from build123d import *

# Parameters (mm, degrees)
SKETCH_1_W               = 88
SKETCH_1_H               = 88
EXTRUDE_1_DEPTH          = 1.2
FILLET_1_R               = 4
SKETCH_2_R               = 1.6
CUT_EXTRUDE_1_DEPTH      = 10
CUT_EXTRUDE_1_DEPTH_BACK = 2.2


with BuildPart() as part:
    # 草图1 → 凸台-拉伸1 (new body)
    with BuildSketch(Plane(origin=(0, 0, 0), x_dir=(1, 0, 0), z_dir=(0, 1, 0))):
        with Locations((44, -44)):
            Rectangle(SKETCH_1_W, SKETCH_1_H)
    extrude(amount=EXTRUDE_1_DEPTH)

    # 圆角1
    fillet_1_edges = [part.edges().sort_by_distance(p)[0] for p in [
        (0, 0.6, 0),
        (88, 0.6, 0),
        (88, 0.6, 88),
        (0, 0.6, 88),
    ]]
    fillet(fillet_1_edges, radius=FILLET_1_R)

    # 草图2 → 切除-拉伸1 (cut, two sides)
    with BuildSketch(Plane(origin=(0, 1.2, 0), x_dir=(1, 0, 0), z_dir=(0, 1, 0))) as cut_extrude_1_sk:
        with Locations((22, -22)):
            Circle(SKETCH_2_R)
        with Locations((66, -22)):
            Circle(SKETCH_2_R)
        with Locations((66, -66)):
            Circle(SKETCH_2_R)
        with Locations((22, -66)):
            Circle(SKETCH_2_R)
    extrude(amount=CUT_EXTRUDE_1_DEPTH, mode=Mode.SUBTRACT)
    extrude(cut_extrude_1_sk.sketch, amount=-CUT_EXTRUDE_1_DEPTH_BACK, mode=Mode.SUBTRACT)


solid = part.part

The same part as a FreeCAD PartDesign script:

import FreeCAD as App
import Part
import Sketcher
Q = App.Units.Quantity


def edges_at(feature, points):
    """Names of the edges that pass closest to the given points."""
    edges = feature.Shape.Edges
    near = lambda p: min(range(len(edges)), key=lambda i: edges[i].distToShape(Part.Vertex(*p))[0])
    return sorted({f"Edge{near(p) + 1}" for p in points})


def add_polygon(sketch, points):
    """Adds a closed chain of lines whose ends are joined by coincident constraints."""
    first, n = sketch.GeometryCount, len(points)
    for a, b in zip(points, points[1:] + points[:1]):
        sketch.addGeometry(Part.LineSegment(App.Vector(*a, 0), App.Vector(*b, 0)), False)
    for i in range(n):
        sketch.addConstraint(Sketcher.Constraint("Coincident", first + i, 2, first + (i + 1) % n, 1))

doc = App.newDocument("Part")
body = doc.addObject("PartDesign::Body", "Body")

# Sketch on XZ plane
sketch1 = doc.addObject("Sketcher::SketchObject", "Sketch")
body.addObject(sketch1)
sketch1.AttachmentSupport = (doc.XZ_Plane, [""])
sketch1.MapMode = "FlatFace"
add_polygon(sketch1, [(0, 0), (0, 88), (88, 88), (88, 0)])  # lines 0-3
sketch1.addConstraint(Sketcher.Constraint("Vertical", 0))
sketch1.addConstraint(Sketcher.Constraint("Horizontal", 1))
sketch1.addConstraint(Sketcher.Constraint("Vertical", 2))
sketch1.addConstraint(Sketcher.Constraint("Horizontal", 3))
sketch1.addConstraint(Sketcher.Constraint("Coincident", 3, 2, -1, 1))
sketch1.addConstraint(Sketcher.Constraint("Equal", 3, 0))
sketch1.addConstraint(Sketcher.Constraint("DistanceX", 1, 1, 1, 2, Q("88 mm")))
pad1 = doc.addObject("PartDesign::Pad", "Pad")
body.addObject(pad1)
pad1.Profile = sketch1
pad1.Length = 1.2
pad1.Reversed = True
doc.recompute()

fillet = doc.addObject("PartDesign::Fillet", "Fillet")
body.addObject(fillet)
fillet.Base = (pad1, edges_at(pad1, [
    (0, 0.6, 0),
    (88, 0.6, 0),
    (88, 0.6, 88),
    (0, 0.6, 88),
]))
fillet.Radius = 4

# Sketch on XZ plane
sketch2 = doc.addObject("Sketcher::SketchObject", "Sketch001")
body.addObject(sketch2)
sketch2.AttachmentSupport = (doc.XZ_Plane, [""])
sketch2.MapMode = "FlatFace"
sketch2.AttachmentOffset = App.Placement(App.Vector(0, 0, -1.2), App.Rotation())
sketch2.addGeometry(Part.Circle(App.Vector(22, 22, 0), App.Vector(0, 0, 1), 1.6), False)
sketch2.addGeometry(Part.Circle(App.Vector(66, 22, 0), App.Vector(0, 0, 1), 1.6), False)
sketch2.addGeometry(Part.Circle(App.Vector(66, 66, 0), App.Vector(0, 0, 1), 1.6), False)
sketch2.addGeometry(Part.Circle(App.Vector(22, 66, 0), App.Vector(0, 0, 1), 1.6), False)
sketch2.addConstraint(Sketcher.Constraint("Equal", 0, 1))
sketch2.addConstraint(Sketcher.Constraint("Equal", 1, 2))
sketch2.addConstraint(Sketcher.Constraint("Equal", 2, 3))
sketch2.addConstraint(Sketcher.Constraint("Horizontal", 0, 3, 1, 3))
sketch2.addConstraint(Sketcher.Constraint("Horizontal", 2, 3, 3, 3))
sketch2.addConstraint(Sketcher.Constraint("Vertical", 1, 3, 2, 3))
sketch2.addConstraint(Sketcher.Constraint("Vertical", 0, 3, 3, 3))
sketch2.addConstraint(Sketcher.Constraint("Diameter", 0, Q("3.2 mm")))
sketch2.addConstraint(Sketcher.Constraint("DistanceX", -1, 1, 0, 3, Q("22 mm")))
sketch2.addConstraint(Sketcher.Constraint("DistanceY", -1, 1, 0, 3, Q("22 mm")))
sketch2.addConstraint(Sketcher.Constraint("DistanceX", -1, 1, 1, 3, Q("66 mm")))
sketch2.addConstraint(Sketcher.Constraint("DistanceY", -1, 1, 2, 3, Q("66 mm")))
pocket1 = doc.addObject("PartDesign::Pocket", "Pocket")
body.addObject(pocket1)
pocket1.Profile = sketch2
pocket1.Type = "ThroughAll"
pocket1.Midplane = True

doc.recompute()
